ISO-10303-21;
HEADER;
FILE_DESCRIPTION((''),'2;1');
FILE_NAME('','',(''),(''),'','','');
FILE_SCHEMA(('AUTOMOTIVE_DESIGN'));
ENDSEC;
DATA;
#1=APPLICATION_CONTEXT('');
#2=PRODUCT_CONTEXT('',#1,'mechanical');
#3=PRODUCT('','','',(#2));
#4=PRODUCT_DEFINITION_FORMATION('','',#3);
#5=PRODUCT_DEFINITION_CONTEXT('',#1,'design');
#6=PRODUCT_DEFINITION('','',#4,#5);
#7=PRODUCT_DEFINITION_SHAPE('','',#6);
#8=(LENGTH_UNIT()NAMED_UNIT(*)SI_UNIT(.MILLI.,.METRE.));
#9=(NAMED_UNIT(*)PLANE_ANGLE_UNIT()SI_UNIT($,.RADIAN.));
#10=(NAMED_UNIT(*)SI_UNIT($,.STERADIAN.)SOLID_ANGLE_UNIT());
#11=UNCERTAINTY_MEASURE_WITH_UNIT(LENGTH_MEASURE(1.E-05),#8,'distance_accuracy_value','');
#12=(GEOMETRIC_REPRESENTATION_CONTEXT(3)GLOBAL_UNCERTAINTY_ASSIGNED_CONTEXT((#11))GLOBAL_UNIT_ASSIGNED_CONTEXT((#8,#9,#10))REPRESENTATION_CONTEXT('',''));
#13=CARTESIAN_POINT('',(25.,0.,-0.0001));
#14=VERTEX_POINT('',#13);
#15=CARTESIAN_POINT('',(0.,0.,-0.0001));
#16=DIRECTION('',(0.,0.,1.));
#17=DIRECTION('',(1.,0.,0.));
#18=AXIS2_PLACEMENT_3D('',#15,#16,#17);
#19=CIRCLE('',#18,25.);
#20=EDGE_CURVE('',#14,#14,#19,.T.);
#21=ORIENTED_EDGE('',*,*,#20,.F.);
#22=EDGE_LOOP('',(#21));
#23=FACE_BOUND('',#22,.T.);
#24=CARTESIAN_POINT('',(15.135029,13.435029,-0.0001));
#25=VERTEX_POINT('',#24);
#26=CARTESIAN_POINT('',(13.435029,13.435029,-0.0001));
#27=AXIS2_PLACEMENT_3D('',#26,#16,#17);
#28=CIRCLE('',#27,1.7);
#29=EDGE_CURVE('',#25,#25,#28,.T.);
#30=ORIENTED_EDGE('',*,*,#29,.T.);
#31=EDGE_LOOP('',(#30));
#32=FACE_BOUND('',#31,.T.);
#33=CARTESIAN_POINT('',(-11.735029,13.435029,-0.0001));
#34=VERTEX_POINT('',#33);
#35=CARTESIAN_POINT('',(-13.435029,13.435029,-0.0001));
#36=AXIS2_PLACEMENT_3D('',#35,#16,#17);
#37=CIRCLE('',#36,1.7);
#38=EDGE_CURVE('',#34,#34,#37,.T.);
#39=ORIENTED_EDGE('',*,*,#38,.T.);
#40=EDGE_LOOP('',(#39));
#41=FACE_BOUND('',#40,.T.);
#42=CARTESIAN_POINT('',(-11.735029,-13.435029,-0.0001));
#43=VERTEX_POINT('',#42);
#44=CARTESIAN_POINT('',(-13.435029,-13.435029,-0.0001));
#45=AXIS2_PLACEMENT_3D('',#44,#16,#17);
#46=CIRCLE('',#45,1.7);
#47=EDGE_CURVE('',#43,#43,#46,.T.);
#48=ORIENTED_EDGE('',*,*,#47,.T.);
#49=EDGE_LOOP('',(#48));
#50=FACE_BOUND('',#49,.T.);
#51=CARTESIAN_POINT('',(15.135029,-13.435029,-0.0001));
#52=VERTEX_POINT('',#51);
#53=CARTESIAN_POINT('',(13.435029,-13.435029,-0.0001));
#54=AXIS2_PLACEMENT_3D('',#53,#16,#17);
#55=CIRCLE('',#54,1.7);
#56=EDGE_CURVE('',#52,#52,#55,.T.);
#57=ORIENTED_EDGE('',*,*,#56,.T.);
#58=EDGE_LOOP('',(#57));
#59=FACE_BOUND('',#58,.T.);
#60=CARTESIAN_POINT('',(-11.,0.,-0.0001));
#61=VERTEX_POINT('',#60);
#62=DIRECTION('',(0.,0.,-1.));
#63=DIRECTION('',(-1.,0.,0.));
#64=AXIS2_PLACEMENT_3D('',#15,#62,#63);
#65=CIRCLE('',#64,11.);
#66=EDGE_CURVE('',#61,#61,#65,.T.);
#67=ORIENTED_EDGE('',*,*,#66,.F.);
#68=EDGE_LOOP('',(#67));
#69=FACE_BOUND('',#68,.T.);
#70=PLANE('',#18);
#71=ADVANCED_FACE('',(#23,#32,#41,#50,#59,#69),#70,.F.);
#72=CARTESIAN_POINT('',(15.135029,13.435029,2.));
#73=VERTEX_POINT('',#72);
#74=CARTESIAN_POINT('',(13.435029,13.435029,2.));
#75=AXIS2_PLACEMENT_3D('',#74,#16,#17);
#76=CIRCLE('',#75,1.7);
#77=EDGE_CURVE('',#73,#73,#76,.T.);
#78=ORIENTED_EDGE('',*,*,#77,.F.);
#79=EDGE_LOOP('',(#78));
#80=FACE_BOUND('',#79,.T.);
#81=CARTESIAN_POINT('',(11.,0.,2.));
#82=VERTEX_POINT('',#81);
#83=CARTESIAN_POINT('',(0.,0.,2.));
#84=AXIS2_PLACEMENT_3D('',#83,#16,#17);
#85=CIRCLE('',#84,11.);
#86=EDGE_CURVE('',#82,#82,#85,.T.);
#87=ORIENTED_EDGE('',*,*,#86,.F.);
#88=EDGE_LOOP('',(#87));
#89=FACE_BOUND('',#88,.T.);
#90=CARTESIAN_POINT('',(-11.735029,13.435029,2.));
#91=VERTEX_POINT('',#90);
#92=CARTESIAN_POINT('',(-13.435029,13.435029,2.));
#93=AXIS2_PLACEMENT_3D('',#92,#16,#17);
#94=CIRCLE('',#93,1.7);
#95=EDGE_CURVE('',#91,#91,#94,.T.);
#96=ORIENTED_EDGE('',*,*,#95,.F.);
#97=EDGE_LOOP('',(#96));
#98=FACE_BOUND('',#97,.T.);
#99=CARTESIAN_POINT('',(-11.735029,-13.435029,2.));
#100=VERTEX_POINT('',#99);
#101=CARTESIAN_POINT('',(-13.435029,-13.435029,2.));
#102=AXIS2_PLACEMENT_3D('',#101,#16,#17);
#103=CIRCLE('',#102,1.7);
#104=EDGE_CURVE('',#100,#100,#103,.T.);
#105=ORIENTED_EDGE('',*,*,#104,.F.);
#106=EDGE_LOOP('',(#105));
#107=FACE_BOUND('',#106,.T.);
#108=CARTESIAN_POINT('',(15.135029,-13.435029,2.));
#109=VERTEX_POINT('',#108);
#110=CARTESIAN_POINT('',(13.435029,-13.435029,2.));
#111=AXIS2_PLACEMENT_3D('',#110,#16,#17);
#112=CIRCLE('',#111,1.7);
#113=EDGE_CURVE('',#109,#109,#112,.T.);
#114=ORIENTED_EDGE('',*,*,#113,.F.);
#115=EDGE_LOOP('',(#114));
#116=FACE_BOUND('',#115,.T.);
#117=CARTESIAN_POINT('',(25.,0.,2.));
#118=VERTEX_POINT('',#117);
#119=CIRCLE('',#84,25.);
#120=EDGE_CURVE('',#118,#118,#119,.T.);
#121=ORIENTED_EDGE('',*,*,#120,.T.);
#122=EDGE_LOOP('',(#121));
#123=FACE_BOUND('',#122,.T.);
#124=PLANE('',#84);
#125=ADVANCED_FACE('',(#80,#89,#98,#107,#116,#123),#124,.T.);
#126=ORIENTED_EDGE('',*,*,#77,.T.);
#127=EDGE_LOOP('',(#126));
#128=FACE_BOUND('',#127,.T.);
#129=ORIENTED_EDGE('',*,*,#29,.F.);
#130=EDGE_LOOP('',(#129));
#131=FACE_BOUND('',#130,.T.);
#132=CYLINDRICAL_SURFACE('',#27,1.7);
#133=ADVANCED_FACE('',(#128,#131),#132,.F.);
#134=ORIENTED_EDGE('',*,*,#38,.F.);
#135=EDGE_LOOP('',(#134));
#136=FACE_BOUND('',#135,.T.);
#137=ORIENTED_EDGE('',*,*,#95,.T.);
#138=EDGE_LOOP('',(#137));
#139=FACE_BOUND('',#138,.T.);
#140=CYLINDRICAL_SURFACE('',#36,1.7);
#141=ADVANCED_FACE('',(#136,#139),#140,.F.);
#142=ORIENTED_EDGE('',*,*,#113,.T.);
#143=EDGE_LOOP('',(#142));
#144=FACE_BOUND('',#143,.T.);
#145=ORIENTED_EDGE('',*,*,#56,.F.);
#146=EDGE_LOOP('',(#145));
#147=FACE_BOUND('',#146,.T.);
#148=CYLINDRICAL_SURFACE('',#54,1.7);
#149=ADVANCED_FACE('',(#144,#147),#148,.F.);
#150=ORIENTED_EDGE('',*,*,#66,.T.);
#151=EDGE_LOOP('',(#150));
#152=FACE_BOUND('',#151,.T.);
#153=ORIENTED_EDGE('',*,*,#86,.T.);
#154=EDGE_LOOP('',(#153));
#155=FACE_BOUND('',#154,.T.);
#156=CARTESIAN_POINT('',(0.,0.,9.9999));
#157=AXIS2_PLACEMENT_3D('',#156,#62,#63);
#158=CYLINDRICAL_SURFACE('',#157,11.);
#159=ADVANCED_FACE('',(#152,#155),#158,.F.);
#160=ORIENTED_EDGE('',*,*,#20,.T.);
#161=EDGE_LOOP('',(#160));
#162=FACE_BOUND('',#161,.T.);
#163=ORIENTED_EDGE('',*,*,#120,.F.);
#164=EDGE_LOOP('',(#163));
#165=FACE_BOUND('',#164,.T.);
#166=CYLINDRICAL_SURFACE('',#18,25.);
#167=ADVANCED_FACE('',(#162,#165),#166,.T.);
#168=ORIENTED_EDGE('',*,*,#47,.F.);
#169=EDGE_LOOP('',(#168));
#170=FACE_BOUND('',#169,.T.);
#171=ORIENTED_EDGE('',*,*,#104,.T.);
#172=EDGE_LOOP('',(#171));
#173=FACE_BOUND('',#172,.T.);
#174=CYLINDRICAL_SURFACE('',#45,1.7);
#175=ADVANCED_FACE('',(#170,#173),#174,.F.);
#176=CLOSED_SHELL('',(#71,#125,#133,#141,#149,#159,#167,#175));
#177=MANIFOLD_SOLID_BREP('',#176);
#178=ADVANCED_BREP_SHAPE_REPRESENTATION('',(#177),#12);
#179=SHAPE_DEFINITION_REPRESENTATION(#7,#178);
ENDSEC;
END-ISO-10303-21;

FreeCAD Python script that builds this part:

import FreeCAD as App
import Part
import Sketcher
Q = App.Units.Quantity

doc = App.newDocument("Part")
body = doc.addObject("PartDesign::Body", "Body")

# Sketch on XY plane
sketch1 = doc.addObject("Sketcher::SketchObject", "Sketch")
body.addObject(sketch1)
sketch1.AttachmentSupport = (doc.XY_Plane, [""])
sketch1.MapMode = "FlatFace"
sketch1.addGeometry([
    Part.Circle(App.Vector(0, 0, 0), App.Vector(0, 0, 1), 25),  # 0
    Part.Circle(App.Vector(-13.4, -13.4, 0), App.Vector(0, 0, 1), 1.7),  # 1
    Part.Circle(App.Vector(13.4, -13.4, 0), App.Vector(0, 0, 1), 1.7),  # 2
    Part.Circle(App.Vector(-13.4, 13.4, 0), App.Vector(0, 0, 1), 1.7),  # 3
    Part.Circle(App.Vector(13.4, 13.4, 0), App.Vector(0, 0, 1), 1.7),  # 4
], False)
sketch1.addConstraint([
    Sketcher.Constraint("Coincident", 0, 3, -1, 1),
    Sketcher.Constraint("Equal", 1, 2),
    Sketcher.Constraint("Equal", 2, 3),
    Sketcher.Constraint("Equal", 3, 4),
    Sketcher.Constraint("Symmetric", 2, 3, 3, 3, -1, 1),
    Sketcher.Constraint("Symmetric", 1, 3, 4, 3, -1, 1),
    Sketcher.Constraint("Symmetric", 1, 3, 2, 3, -2),
    Sketcher.Constraint("Diameter", 0, Q("50 mm")),
    Sketcher.Constraint("Diameter", 1, Q("3.4 mm")),
    Sketcher.Constraint("DistanceX", 1, 3, -1, 1, Q("13.435029 mm")),
    Sketcher.Constraint("DistanceY", 1, 3, -1, 1, Q("13.435029 mm")),
])
pad1 = doc.addObject("PartDesign::Pad", "Pad")
body.addObject(pad1)
pad1.Profile = sketch1
pad1.Type = "TwoLengths"
pad1.Length = 2
pad1.Length2 = 0.0001

# Sketch on XY plane
sketch2 = doc.addObject("Sketcher::SketchObject", "Sketch001")
body.addObject(sketch2)
sketch2.AttachmentSupport = (doc.XY_Plane, [""])
sketch2.MapMode = "FlatFace"
sketch2.AttachmentOffset = App.Placement(App.Vector(0, 0, -0.0001), App.Rotation())
sketch2.addGeometry(Part.Circle(App.Vector(0, 0, 0), App.Vector(0, 0, 1), 11), False)
sketch2.addConstraint([
    Sketcher.Constraint("Coincident", 0, 3, -1, 1),
    Sketcher.Constraint("Diameter", 0, Q("22 mm")),
])
pocket1 = doc.addObject("PartDesign::Pocket", "Pocket")
body.addObject(pocket1)
pocket1.Profile = sketch2
pocket1.Length = 10
pocket1.Reversed = True

doc.recompute()
